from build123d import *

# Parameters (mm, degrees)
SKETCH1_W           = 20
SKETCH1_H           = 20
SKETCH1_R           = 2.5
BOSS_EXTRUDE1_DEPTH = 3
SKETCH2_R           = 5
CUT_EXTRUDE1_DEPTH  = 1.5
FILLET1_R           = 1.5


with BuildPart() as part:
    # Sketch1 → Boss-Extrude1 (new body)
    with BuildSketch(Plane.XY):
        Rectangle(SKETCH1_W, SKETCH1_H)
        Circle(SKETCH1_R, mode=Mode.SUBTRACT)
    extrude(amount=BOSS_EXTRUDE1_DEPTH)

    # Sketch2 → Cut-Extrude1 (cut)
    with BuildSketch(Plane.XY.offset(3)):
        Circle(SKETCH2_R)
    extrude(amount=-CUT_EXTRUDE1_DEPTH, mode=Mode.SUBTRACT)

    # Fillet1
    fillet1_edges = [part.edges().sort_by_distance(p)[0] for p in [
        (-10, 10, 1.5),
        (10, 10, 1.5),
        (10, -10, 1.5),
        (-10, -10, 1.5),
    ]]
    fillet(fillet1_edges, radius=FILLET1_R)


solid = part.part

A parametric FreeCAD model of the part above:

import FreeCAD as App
import Part
import Sketcher
from FreeCAD import Vector
Q = App.Units.Quantity


def edges_at(feature, points):
    """Names of the edges that pass closest to the given points."""
    edges = feature.Shape.Edges
    near = lambda p: min(range(len(edges)), key=lambda i: edges[i].distToShape(Part.Vertex(*p))[0])
    return sorted({f"Edge{near(p) + 1}" for p in points})


def add_polygon(sketch, points):
    """Adds a closed chain of lines whose ends are joined by coincident constraints."""
    first, n = sketch.GeometryCount, len(points)
    for a, b in zip(points, points[1:] + points[:1]):
        sketch.addGeometry(Part.LineSegment(App.Vector(*a, 0), App.Vector(*b, 0)), False)
    for i in range(n):
        sketch.addConstraint(Sketcher.Constraint("Coincident", first + i, 2, first + (i + 1) % n, 1))

doc = App.newDocument("Part")
body = doc.addObject("PartDesign::Body", "Body")

sketch1 = body.newObject("Sketcher::SketchObject", "Sketch")
sketch1.AttachmentSupport = (doc.getObject("XY_Plane"), [""])
sketch1.MapMode = "FlatFace"
add_polygon(sketch1, [(-10, 10), (-10, -10), (10, -10), (10, 10)])
sketch1.addGeometry(Part.Circle(Vector(0, 0, 0), Vector(0, 0, 1), 2.5), False)
sketch1.addConstraint([
    Sketcher.Constraint("Vertical", 0),
    Sketcher.Constraint("Horizontal", 1),
    Sketcher.Constraint("Vertical", 2),
    Sketcher.Constraint("Horizontal", 3),
    Sketcher.Constraint("Coincident", 4, 3, -1, 1),
    Sketcher.Constraint("Symmetric", 0, 2, 2, 2, -1, 1),
    Sketcher.Constraint("Equal", 3, 0),
    Sketcher.Constraint("Diameter", 4, Q("5 mm")),
    Sketcher.Constraint("DistanceX", 1, 1, 1, 2, Q("20 mm")),
])
pad1 = body.newObject("PartDesign::Pad", "Pad")
pad1.Profile = sketch1
pad1.Length = 3

sketch2 = body.newObject("Sketcher::SketchObject", "Sketch001")
sketch2.AttachmentSupport = (doc.getObject("XY_Plane"), [""])
sketch2.MapMode = "FlatFace"
sketch2.AttachmentOffset = App.Placement(Vector(0, 0, 3), App.Rotation())
sketch2.addGeometry(Part.Circle(Vector(0, 0, 0), Vector(0, 0, 1), 5), False)
sketch2.addConstraint([
    Sketcher.Constraint("Coincident", 0, 3, -1, 1),
    Sketcher.Constraint("Diameter", 0, Q("10 mm")),
])
pocket1 = body.newObject("PartDesign::Pocket", "Pocket")
pocket1.Profile = sketch2
pocket1.Length = 1.5
doc.recompute()

fillet = body.newObject("PartDesign::Fillet", "Fillet")
fillet.Base = (pocket1, edges_at(pocket1, [
    (-10, 10, 1.5),
    (10, 10, 1.5),
    (10, -10, 1.5),
    (-10, -10, 1.5),
]))
fillet.Radius = 1.5

doc.recompute()
